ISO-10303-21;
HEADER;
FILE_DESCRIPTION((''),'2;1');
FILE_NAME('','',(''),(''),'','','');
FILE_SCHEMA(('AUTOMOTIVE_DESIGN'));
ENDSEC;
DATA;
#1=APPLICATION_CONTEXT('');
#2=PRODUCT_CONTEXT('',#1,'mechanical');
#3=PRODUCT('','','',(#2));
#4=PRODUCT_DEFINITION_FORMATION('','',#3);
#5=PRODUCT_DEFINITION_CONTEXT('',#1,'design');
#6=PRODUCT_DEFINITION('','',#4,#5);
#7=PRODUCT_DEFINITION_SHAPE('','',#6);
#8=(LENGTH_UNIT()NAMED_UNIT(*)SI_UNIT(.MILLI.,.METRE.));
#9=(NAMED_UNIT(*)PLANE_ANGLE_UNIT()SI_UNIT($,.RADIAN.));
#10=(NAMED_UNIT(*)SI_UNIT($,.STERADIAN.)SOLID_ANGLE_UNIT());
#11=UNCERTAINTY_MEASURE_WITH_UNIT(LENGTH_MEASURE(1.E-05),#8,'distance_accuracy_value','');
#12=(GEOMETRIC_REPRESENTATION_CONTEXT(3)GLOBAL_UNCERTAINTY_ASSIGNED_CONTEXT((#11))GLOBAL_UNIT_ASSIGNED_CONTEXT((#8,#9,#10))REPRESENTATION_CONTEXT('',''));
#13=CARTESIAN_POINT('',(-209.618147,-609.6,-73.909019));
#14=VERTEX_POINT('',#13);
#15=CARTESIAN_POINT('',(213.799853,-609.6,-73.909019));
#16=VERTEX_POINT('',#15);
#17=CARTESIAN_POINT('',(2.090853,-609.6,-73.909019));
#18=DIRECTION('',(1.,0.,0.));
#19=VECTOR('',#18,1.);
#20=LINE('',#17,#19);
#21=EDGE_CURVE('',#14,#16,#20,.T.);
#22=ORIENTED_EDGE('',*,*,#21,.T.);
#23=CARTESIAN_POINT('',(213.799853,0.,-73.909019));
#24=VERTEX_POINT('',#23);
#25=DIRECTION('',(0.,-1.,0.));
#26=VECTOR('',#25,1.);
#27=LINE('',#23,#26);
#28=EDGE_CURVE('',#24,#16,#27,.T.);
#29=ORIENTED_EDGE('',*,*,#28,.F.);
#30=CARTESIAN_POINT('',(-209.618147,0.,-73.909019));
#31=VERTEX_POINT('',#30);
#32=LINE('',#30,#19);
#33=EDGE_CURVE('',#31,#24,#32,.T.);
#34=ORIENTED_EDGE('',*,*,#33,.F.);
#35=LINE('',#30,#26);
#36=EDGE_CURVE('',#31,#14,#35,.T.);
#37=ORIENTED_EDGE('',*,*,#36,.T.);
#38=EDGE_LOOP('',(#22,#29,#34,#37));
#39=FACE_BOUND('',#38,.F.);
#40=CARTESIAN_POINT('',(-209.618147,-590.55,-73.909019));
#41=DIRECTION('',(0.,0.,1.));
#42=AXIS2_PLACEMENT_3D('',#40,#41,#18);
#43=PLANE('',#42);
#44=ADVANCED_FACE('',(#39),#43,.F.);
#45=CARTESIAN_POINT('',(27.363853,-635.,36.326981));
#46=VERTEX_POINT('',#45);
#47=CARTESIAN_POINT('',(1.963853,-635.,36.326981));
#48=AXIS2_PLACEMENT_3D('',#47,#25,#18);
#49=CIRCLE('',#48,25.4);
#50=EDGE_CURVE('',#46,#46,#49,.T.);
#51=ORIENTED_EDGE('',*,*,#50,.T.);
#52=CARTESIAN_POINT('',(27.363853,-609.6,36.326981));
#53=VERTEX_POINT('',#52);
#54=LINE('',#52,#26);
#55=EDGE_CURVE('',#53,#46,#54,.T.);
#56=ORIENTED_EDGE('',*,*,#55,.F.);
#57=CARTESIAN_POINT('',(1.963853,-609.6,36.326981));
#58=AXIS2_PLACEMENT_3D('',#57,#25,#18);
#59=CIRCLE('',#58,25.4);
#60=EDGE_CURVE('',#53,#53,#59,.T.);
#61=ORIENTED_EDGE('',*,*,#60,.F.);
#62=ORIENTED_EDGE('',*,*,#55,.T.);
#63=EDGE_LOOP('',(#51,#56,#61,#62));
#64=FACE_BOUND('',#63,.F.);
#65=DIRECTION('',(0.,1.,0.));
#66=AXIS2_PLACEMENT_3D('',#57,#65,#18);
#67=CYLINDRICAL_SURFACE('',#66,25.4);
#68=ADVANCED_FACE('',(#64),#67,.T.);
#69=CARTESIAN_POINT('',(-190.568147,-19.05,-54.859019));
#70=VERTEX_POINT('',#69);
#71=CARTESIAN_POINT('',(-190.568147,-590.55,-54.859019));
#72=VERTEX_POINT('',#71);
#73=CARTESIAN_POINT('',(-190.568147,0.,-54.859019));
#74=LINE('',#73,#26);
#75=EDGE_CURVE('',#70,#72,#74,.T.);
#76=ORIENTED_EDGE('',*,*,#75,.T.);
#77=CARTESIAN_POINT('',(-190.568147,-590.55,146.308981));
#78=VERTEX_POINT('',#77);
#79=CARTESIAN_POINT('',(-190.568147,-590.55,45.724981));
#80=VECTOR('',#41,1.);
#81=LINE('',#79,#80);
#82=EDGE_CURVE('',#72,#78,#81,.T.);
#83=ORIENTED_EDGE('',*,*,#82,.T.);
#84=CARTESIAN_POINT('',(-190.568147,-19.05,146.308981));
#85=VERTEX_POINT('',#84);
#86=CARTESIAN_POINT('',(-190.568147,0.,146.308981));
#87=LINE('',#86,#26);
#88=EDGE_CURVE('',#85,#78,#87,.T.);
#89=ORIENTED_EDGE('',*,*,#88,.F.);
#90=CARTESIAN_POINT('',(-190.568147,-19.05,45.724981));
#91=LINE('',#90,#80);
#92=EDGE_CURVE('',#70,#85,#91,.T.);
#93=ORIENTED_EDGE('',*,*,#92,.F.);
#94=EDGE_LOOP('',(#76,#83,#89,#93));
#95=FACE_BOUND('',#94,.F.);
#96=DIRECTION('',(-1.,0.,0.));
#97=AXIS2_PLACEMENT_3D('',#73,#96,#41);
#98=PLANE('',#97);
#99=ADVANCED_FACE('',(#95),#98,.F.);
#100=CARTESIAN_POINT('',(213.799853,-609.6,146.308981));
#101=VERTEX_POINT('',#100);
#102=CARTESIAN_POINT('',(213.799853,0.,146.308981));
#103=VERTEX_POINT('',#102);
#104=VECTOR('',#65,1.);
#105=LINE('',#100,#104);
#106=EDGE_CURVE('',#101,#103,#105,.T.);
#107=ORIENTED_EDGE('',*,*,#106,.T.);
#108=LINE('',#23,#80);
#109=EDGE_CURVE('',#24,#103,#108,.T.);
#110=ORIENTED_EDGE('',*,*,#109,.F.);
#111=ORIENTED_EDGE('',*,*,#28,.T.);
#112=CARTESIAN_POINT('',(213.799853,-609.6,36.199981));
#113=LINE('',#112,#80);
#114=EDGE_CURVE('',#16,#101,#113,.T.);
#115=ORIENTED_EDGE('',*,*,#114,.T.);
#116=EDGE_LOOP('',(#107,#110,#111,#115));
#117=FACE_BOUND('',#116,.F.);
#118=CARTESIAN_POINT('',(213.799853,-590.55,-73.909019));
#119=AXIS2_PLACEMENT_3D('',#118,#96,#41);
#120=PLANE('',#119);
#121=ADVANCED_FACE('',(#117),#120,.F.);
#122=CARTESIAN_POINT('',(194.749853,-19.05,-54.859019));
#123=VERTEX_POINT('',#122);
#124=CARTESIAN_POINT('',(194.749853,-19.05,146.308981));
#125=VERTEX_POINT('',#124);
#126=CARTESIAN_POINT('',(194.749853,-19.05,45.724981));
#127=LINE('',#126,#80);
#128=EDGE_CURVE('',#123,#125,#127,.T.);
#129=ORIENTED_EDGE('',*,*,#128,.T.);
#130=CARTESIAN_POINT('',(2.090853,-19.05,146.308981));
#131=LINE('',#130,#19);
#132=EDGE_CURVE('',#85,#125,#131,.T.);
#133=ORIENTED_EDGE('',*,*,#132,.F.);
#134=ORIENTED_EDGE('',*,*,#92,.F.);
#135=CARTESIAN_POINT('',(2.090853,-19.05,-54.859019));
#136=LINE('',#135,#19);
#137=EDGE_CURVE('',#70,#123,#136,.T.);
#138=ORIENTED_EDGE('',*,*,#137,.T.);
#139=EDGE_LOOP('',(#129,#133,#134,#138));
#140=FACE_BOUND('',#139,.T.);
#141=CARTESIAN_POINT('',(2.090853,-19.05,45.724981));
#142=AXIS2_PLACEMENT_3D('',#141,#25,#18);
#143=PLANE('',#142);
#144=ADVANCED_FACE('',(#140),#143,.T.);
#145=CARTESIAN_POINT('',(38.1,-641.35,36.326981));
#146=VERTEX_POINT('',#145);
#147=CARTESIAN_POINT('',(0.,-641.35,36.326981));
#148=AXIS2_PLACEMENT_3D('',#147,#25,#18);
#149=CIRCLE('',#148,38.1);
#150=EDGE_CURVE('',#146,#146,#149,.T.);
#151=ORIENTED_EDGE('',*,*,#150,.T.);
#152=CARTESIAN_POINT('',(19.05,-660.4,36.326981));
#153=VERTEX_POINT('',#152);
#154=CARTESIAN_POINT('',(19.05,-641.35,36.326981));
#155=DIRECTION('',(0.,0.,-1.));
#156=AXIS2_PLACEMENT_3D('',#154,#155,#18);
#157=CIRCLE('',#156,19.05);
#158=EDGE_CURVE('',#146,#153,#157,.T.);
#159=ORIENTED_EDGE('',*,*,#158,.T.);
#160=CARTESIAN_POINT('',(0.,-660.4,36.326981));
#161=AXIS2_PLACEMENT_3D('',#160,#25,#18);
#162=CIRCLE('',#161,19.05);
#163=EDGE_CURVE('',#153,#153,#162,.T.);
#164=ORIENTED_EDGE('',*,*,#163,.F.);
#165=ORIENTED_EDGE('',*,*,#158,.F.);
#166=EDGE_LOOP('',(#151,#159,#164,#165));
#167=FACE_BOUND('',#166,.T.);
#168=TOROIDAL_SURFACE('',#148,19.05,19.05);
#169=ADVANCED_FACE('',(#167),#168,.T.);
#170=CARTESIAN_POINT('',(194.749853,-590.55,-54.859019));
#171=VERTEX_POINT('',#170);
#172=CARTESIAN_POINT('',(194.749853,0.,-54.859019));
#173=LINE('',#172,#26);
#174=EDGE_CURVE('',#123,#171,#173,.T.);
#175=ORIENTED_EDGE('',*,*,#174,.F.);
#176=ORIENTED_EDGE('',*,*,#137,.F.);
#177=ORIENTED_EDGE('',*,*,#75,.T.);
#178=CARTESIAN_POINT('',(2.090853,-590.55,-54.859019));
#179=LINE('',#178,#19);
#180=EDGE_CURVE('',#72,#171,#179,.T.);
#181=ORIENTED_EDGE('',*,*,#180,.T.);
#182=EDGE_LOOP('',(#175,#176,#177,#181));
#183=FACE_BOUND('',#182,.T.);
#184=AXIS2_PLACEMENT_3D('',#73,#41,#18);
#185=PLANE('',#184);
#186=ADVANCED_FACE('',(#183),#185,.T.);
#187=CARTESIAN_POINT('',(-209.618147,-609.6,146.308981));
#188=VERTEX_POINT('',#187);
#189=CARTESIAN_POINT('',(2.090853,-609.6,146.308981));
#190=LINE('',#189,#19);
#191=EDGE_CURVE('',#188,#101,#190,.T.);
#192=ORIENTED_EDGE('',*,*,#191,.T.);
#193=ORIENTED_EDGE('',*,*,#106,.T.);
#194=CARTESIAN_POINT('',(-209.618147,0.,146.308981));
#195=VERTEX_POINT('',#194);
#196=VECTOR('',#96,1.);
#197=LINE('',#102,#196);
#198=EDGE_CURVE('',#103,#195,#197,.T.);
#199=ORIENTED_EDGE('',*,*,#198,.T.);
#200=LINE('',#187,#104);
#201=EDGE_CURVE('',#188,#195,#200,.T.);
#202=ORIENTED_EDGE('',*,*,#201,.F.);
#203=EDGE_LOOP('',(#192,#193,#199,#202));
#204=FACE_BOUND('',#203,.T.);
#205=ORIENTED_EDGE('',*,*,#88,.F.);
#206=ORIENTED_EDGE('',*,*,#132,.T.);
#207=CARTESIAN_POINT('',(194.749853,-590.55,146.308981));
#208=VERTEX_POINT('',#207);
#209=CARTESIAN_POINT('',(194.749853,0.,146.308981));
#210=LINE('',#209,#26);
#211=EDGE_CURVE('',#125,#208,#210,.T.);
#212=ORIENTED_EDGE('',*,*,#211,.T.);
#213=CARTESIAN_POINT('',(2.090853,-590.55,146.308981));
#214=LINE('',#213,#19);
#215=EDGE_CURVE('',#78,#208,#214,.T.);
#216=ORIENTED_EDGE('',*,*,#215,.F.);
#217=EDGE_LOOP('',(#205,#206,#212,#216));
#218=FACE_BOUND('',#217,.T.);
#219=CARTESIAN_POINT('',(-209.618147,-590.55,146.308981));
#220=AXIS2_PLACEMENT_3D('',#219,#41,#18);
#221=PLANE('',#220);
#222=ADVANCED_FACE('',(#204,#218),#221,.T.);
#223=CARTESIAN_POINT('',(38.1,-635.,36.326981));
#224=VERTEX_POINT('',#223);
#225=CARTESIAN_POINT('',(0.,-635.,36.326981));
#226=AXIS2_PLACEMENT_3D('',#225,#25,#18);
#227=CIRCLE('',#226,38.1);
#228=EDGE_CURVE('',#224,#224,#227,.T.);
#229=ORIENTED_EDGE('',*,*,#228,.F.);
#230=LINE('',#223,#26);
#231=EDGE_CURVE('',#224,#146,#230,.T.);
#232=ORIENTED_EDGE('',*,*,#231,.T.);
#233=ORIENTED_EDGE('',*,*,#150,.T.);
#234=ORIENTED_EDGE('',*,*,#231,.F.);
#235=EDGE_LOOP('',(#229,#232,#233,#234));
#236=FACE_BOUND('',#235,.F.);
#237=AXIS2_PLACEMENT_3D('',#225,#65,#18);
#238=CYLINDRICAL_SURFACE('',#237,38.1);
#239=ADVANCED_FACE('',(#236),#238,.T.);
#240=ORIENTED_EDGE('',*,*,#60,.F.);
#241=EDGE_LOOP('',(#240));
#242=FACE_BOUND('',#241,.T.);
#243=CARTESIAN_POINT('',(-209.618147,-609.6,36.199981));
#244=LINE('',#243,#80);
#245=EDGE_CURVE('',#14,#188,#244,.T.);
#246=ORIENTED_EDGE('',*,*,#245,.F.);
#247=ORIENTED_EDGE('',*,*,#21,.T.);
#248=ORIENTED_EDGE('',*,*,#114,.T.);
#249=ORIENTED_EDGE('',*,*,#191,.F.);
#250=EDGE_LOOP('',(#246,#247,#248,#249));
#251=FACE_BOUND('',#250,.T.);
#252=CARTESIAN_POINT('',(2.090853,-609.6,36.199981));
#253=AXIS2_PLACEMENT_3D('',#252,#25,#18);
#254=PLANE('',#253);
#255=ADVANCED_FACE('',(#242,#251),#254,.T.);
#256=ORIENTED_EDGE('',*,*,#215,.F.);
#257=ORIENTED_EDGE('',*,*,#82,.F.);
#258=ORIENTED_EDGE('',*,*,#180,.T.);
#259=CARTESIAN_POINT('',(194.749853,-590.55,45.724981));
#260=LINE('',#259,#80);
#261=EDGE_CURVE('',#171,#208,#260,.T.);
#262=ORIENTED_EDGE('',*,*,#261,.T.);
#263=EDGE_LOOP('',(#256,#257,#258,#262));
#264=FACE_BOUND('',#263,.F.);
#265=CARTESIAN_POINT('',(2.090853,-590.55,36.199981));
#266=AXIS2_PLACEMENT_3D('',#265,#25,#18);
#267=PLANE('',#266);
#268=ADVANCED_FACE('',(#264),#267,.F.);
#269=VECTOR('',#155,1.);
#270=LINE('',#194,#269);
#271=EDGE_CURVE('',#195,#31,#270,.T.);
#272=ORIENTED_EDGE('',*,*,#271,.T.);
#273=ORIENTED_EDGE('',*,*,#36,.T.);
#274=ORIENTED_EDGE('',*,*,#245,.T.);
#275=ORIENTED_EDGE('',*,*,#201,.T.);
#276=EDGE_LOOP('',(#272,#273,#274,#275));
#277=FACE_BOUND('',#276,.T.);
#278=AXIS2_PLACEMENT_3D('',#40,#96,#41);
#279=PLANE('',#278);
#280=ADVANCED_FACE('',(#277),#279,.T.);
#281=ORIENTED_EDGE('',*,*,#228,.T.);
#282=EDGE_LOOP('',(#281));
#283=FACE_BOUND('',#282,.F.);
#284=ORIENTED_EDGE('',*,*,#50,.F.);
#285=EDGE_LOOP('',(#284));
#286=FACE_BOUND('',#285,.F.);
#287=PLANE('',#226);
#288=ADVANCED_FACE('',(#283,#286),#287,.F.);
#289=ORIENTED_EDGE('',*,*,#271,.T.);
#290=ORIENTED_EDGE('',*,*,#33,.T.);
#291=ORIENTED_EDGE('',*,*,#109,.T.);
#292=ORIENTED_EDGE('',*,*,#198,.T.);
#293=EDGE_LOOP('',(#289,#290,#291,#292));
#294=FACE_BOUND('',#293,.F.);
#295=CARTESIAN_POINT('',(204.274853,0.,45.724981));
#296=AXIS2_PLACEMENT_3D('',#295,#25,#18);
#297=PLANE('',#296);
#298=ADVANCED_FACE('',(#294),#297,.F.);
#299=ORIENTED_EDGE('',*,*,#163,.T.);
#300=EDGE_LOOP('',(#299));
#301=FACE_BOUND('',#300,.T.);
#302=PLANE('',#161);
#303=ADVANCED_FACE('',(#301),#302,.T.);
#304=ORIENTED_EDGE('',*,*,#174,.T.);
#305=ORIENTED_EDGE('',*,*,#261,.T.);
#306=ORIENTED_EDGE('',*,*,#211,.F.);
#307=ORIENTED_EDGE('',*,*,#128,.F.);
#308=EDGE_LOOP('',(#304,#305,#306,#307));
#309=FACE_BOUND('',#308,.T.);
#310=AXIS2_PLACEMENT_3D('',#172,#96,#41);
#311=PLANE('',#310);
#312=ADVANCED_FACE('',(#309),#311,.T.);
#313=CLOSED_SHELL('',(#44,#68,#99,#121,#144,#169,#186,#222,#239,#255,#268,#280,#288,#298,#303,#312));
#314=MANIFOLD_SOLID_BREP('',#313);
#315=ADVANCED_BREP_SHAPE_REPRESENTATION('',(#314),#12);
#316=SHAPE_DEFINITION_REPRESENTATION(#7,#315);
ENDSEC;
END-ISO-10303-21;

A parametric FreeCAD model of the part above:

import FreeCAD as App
import Part
import Sketcher
from FreeCAD import Vector
Q = App.Units.Quantity


def edges_at(feature, points):
    """Names of the edges that pass closest to the given points."""
    edges = feature.Shape.Edges
    near = lambda p: min(range(len(edges)), key=lambda i: edges[i].distToShape(Part.Vertex(*p))[0])
    return sorted({f"Edge{near(p) + 1}" for p in points})


def add_polygon(sketch, points):
    """Adds a closed chain of lines whose ends are joined by coincident constraints."""
    first, n = sketch.GeometryCount, len(points)
    for a, b in zip(points, points[1:] + points[:1]):
        sketch.addGeometry(Part.LineSegment(App.Vector(*a, 0), App.Vector(*b, 0)), False)
    for i in range(n):
        sketch.addConstraint(Sketcher.Constraint("Coincident", first + i, 2, first + (i + 1) % n, 1))

doc = App.newDocument("Part")
body = doc.addObject("PartDesign::Body", "Body")

# Sketch on XZ plane
sketch1 = body.newObject("Sketcher::SketchObject", "Sketch")
sketch1.AttachmentSupport = (doc.getObject("XZ_Plane"), [""])
sketch1.MapMode = "FlatFace"
add_polygon(sketch1, [(-190.568147, 146.308981), (-190.568147, -54.859019), (194.749853, -54.859019), (194.749853, 146.308981)])  # lines 0-3
sketch1.addConstraint(Sketcher.Constraint("Vertical", 0))
sketch1.addConstraint(Sketcher.Constraint("Horizontal", 1))
sketch1.addConstraint(Sketcher.Constraint("Vertical", 2))
sketch1.addConstraint(Sketcher.Constraint("Horizontal", 3))
sketch1.addConstraint(Sketcher.Constraint("DistanceX", 1, 1, 1, 2, Q("15.17 in")))
sketch1.addConstraint(Sketcher.Constraint("DistanceY", 0, 2, 0, 1, Q("7.92 in")))
sketch1.addConstraint(Sketcher.Constraint("DistanceY", 0, 2, -1, 1, Q("54.859019 mm")))
sketch1.addConstraint(Sketcher.Constraint("DistanceX", 0, 2, -1, 1, Q("190.568147 mm")))
pad1 = body.newObject("PartDesign::Pad", "Pad")
pad1.Profile = sketch1
pad1.Length = Q("0.75 in")

# Sketch on XZ plane
sketch2 = body.newObject("Sketcher::SketchObject", "Sketch001")
sketch2.AttachmentSupport = (doc.getObject("XZ_Plane"), [""])
sketch2.MapMode = "FlatFace"
add_polygon(sketch2, [(194.749853, 146.308981), (194.749853, -54.859019), (-190.568147, -54.859019), (-190.568147, 146.308981), (-209.618147, 146.308981), (-209.618147, -73.909019), (213.799853, -73.909019), (213.799853, 146.308981)])  # lines 0-7
sketch2.addConstraint(Sketcher.Constraint("Vertical", 0))
sketch2.addConstraint(Sketcher.Constraint("Horizontal", 1))
sketch2.addConstraint(Sketcher.Constraint("Vertical", 2))
sketch2.addConstraint(Sketcher.Constraint("Horizontal", 3))
sketch2.addConstraint(Sketcher.Constraint("Vertical", 4))
sketch2.addConstraint(Sketcher.Constraint("Horizontal", 5))
sketch2.addConstraint(Sketcher.Constraint("Vertical", 6))
sketch2.addConstraint(Sketcher.Constraint("Horizontal", 7))
sketch2.addConstraint(Sketcher.Constraint("Horizontal", 3, 2, 6, 2))
sketch2.addConstraint(Sketcher.Constraint("Equal", 3, 7))
sketch2.addConstraint(Sketcher.Constraint("DistanceX", 1, 2, 1, 1, Q("15.17 in")))
sketch2.addConstraint(Sketcher.Constraint("DistanceX", 3, 2, 3, 1, Q("0.75 in")))
sketch2.addConstraint(Sketcher.Constraint("DistanceY", 0, 2, 0, 1, Q("7.92 in")))
sketch2.addConstraint(Sketcher.Constraint("DistanceY", 4, 2, 4, 1, Q("8.67 in")))
sketch2.addConstraint(Sketcher.Constraint("DistanceY", 0, 2, -1, 1, Q("54.859019 mm")))
sketch2.addConstraint(Sketcher.Constraint("DistanceX", -1, 1, 0, 2, Q("194.749853 mm")))
pad2 = body.newObject("PartDesign::Pad", "Pad001")
pad2.Profile = sketch2
pad2.Length = Q("23.25 in")

# Sketch on XZ plane
sketch3 = body.newObject("Sketcher::SketchObject", "Sketch002")
sketch3.AttachmentSupport = (doc.getObject("XZ_Plane"), [""])
sketch3.MapMode = "FlatFace"
sketch3.AttachmentOffset = App.Placement(Vector(0, 0, 23.25 * 25.4), App.Rotation())
add_polygon(sketch3, [(-209.618147, 146.308981), (-209.618147, -73.909019), (213.799853, -73.909019), (213.799853, 146.308981)])  # lines 0-3
sketch3.addConstraint(Sketcher.Constraint("Vertical", 0))
sketch3.addConstraint(Sketcher.Constraint("Horizontal", 1))
sketch3.addConstraint(Sketcher.Constraint("Vertical", 2))
sketch3.addConstraint(Sketcher.Constraint("Horizontal", 3))
sketch3.addConstraint(Sketcher.Constraint("DistanceX", 1, 1, 1, 2, Q("16.67 in")))
sketch3.addConstraint(Sketcher.Constraint("DistanceY", 0, 2, 0, 1, Q("8.67 in")))
sketch3.addConstraint(Sketcher.Constraint("DistanceY", 0, 2, -1, 1, Q("73.909019 mm")))
sketch3.addConstraint(Sketcher.Constraint("DistanceX", 0, 2, -1, 1, Q("209.618147 mm")))
pad3 = body.newObject("PartDesign::Pad", "Pad002")
pad3.Profile = sketch3
pad3.Length = Q("0.75 in")

# Sketch on XZ plane
sketch4 = body.newObject("Sketcher::SketchObject", "Sketch003")
sketch4.AttachmentSupport = (doc.getObject("XZ_Plane"), [""])
sketch4.MapMode = "FlatFace"
sketch4.AttachmentOffset = App.Placement(Vector(0, 0, 24 * 25.4), App.Rotation())
sketch4.addGeometry(Part.Circle(Vector(1.963853, 36.326981, 0), Vector(0, 0, 1), 25.4), False)
sketch4.addConstraint(Sketcher.Constraint("Diameter", 0, Q("2 in")))
sketch4.addConstraint(Sketcher.Constraint("DistanceY", -1, 1, 0, 3, Q("36.326981 mm")))
sketch4.addConstraint(Sketcher.Constraint("DistanceX", -1, 1, 0, 3, Q("1.963853 mm")))
pad4 = body.newObject("PartDesign::Pad", "Pad003")
pad4.Profile = sketch4
pad4.Length = Q("1 in")

# Sketch on XZ plane
sketch5 = body.newObject("Sketcher::SketchObject", "Sketch004")
sketch5.AttachmentSupport = (doc.getObject("XZ_Plane"), [""])
sketch5.MapMode = "FlatFace"
sketch5.AttachmentOffset = App.Placement(Vector(0, 0, 25 * 25.4), App.Rotation())
sketch5.addGeometry(Part.Circle(Vector(0, 36.326981, 0), Vector(0, 0, 1), 38.1), False)
sketch5.addConstraint(Sketcher.Constraint("PointOnObject", 0, 3, -2))
sketch5.addConstraint(Sketcher.Constraint("Diameter", 0, Q("3 in")))
sketch5.addConstraint(Sketcher.Constraint("DistanceY", -1, 1, 0, 3, Q("36.326981 mm")))
pad5 = body.newObject("PartDesign::Pad", "Pad004")
pad5.Profile = sketch5
pad5.Length = Q("1 in")
doc.recompute()

fillet = body.newObject("PartDesign::Fillet", "Fillet")
fillet.Base = (pad5, edges_at(pad5, [(-38.1, -660.4, 36.327)]))
fillet.Radius = Q("0.75 in")

doc.recompute()
